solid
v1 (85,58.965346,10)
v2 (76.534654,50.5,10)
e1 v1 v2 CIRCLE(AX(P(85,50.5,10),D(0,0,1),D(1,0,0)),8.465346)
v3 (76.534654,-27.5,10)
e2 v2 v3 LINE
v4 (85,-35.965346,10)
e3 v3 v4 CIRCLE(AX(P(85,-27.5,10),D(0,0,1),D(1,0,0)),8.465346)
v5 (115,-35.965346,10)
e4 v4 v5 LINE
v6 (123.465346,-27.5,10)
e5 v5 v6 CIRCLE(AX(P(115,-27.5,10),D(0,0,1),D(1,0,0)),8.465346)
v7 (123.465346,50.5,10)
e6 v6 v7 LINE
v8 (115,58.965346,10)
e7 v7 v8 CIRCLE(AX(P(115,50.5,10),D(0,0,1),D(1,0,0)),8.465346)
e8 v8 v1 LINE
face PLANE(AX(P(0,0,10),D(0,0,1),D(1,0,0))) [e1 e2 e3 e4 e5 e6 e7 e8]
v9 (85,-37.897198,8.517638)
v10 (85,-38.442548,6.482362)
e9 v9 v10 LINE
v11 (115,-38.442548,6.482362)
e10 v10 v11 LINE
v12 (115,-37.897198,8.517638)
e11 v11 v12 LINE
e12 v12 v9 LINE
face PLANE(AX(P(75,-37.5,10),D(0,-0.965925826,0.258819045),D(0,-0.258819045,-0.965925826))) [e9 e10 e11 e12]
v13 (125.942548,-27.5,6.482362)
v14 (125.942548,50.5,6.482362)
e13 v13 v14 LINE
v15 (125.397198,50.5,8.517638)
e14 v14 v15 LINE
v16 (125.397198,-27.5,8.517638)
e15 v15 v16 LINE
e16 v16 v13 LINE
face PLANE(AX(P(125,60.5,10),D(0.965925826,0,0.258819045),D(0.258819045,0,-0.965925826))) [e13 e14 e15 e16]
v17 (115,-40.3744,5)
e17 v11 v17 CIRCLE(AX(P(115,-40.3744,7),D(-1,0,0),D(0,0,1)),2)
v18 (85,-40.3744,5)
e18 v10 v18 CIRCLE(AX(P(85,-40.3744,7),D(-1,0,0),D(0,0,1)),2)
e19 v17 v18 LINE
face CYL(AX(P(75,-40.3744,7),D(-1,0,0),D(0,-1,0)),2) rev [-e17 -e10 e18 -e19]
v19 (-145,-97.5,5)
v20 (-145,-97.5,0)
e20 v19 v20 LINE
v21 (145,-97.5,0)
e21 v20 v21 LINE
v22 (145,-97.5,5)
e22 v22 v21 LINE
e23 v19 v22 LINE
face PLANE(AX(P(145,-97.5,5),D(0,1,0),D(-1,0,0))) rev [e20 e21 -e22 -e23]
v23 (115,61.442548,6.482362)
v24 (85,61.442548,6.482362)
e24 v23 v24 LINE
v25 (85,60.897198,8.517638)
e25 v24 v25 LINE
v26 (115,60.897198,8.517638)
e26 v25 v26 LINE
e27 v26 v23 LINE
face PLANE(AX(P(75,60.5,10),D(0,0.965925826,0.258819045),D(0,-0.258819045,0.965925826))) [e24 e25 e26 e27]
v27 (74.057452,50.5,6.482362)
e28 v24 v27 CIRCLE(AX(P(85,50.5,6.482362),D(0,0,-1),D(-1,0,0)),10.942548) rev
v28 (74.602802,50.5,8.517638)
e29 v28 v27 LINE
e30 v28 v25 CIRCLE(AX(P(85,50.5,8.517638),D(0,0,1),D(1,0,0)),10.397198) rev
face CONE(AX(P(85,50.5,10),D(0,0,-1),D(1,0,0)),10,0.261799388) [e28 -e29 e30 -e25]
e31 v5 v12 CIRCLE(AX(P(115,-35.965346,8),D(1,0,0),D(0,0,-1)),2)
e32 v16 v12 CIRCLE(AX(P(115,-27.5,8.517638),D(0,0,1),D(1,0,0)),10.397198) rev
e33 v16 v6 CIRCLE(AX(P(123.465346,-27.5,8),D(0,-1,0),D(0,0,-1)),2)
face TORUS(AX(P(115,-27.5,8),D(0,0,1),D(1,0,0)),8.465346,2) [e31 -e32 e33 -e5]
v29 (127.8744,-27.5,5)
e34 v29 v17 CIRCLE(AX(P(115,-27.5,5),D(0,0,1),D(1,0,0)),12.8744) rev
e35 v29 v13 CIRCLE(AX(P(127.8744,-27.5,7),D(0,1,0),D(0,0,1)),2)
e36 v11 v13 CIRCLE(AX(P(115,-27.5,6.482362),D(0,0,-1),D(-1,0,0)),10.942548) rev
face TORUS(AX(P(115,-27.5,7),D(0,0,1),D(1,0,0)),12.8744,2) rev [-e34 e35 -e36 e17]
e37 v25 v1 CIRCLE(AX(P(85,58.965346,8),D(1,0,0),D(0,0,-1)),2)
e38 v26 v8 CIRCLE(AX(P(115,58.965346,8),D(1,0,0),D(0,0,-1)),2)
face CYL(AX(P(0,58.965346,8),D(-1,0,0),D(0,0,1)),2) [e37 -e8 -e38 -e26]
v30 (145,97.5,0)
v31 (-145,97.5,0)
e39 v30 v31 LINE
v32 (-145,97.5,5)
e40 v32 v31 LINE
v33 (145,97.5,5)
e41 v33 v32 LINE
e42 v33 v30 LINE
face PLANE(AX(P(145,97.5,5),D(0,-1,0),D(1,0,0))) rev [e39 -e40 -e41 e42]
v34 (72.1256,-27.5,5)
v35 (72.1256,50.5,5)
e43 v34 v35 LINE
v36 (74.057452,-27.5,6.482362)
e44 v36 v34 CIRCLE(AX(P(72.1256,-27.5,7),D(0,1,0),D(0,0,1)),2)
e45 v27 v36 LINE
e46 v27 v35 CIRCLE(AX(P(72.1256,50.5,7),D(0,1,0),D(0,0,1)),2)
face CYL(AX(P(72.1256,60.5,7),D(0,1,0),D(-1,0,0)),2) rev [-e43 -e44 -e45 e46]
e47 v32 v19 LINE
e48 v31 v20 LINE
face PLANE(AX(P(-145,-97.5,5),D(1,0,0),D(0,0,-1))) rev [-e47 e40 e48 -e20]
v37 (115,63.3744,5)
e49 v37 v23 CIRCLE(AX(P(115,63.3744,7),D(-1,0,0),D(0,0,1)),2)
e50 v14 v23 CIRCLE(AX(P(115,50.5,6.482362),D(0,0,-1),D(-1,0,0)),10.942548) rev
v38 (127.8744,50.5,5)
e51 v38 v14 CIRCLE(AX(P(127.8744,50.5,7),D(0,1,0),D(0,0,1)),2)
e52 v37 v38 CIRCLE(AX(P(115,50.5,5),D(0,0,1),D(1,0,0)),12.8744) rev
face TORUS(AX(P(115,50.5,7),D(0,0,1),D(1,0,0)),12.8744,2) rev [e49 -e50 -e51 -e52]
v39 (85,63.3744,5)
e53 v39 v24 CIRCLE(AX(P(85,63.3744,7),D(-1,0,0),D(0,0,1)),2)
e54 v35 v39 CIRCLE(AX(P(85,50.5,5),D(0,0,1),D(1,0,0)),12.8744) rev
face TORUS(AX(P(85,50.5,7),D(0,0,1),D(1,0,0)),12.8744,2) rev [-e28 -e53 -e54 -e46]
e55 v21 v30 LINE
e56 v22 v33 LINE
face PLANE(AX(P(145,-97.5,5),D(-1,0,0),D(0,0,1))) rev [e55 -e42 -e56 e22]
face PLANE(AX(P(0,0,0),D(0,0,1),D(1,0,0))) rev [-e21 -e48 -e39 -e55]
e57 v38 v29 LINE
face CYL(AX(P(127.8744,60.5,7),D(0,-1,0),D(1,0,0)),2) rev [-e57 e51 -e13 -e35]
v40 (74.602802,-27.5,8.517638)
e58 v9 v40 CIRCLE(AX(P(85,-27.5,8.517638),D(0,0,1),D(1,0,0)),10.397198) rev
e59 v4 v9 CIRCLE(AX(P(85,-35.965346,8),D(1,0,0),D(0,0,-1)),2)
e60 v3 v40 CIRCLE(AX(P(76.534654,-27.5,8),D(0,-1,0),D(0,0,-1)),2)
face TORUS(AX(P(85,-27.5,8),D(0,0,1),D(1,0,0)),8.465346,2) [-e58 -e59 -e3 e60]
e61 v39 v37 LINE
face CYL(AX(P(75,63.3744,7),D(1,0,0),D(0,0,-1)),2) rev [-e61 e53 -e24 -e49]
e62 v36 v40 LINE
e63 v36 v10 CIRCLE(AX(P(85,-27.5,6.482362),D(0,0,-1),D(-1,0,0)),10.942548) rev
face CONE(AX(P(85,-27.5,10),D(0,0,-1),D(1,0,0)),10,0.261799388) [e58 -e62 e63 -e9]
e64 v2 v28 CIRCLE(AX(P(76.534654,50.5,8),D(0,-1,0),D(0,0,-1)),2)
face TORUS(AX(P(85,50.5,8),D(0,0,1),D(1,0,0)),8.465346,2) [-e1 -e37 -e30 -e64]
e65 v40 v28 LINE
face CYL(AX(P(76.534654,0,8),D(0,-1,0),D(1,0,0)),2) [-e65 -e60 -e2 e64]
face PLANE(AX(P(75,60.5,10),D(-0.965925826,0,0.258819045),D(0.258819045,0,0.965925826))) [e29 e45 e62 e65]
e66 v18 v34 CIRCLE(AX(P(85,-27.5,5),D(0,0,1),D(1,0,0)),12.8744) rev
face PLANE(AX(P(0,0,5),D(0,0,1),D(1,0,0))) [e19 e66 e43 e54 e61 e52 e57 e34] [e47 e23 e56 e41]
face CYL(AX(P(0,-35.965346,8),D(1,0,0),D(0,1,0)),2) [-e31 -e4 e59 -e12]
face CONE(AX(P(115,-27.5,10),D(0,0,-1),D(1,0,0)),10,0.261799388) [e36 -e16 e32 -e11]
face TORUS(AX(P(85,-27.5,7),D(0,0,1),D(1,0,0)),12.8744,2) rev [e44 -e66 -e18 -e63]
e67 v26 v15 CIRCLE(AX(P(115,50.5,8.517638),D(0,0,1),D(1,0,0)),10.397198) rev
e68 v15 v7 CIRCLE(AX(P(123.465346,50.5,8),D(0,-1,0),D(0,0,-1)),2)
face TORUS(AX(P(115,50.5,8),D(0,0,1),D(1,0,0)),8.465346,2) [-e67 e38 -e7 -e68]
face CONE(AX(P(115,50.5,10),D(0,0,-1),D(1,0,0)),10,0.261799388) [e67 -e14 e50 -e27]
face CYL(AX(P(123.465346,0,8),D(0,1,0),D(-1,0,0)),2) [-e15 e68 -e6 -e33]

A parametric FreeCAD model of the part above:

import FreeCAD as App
import Part
import Sketcher
from FreeCAD import Vector


def edges_at(feature, points):
    """Names of the edges that pass closest to the given points."""
    edges = feature.Shape.Edges
    near = lambda p: min(range(len(edges)), key=lambda i: edges[i].distToShape(Part.Vertex(*p))[0])
    return sorted({f"Edge{near(p) + 1}" for p in points})


def faces_at(feature, points):
    """Names of the faces that lie closest to the given points."""
    faces = feature.Shape.Faces
    near = lambda p: min(range(len(faces)), key=lambda i: faces[i].distToShape(Part.Vertex(*p))[0])
    return sorted({f"Face{near(p) + 1}" for p in points})

doc = App.newDocument("Part")
body = doc.addObject("PartDesign::Body", "Body")

# Sketch on XY plane
sketch1 = body.newObject("Sketcher::SketchObject", "Sketch")
sketch1.AttachmentSupport = (doc.getObject("XY_Plane"), [""])
sketch1.MapMode = "FlatFace"
sketch1.addGeometry([
    Part.LineSegment(Vector(-145, 98, 0), Vector(-145, -98, 0)),
    Part.LineSegment(Vector(-145, -98, 0), Vector(145, -98, 0)),
    Part.LineSegment(Vector(145, -98, 0), Vector(145, 98, 0)),
    Part.LineSegment(Vector(145, 98, 0), Vector(-145, 98, 0)),
], False)
sketch1.addConstraint([
    Sketcher.Constraint("Coincident", 0, 2, 1, 1),
    Sketcher.Constraint("Coincident", 1, 2, 2, 1),
    Sketcher.Constraint("Coincident", 2, 2, 3, 1),
    Sketcher.Constraint("Coincident", 3, 2, 0, 1),
    Sketcher.Constraint("Vertical", 0),
    Sketcher.Constraint("Horizontal", 1),
    Sketcher.Constraint("Vertical", 2),
    Sketcher.Constraint("Horizontal", 3),
    Sketcher.Constraint("Symmetric", 0, 2, 2, 2, -1, 1),
    Sketcher.Constraint("DistanceX", 1, 1, 1, 2, 290.0),
    Sketcher.Constraint("DistanceY", 0, 2, 0, 1, 195.0),
])
pad1 = body.newObject("PartDesign::Pad", "Pad")
pad1.Profile = sketch1
pad1.Length = 5

# Sketch on XY plane
sketch2 = body.newObject("Sketcher::SketchObject", "Sketch001")
sketch2.AttachmentSupport = (doc.getObject("XY_Plane"), [""])
sketch2.MapMode = "FlatFace"
sketch2.AttachmentOffset = App.Placement(Vector(0, 0, 5), App.Rotation())
sketch2.addGeometry([
    Part.LineSegment(Vector(75, 60, 0), Vector(75, -38, 0)),
    Part.LineSegment(Vector(75, -38, 0), Vector(125, -38, 0)),
    Part.LineSegment(Vector(125, -38, 0), Vector(125, 60, 0)),
    Part.LineSegment(Vector(125, 60, 0), Vector(75, 60, 0)),
], False)
sketch2.addConstraint([
    Sketcher.Constraint("Coincident", 0, 2, 1, 1),
    Sketcher.Constraint("Coincident", 1, 2, 2, 1),
    Sketcher.Constraint("Coincident", 2, 2, 3, 1),
    Sketcher.Constraint("Coincident", 3, 2, 0, 1),
    Sketcher.Constraint("Vertical", 0),
    Sketcher.Constraint("Horizontal", 1),
    Sketcher.Constraint("Vertical", 2),
    Sketcher.Constraint("Horizontal", 3),
    Sketcher.Constraint("DistanceX", 1, 1, 1, 2, 50.0),
    Sketcher.Constraint("DistanceY", 0, 2, 0, 1, 98.0),
    Sketcher.Constraint("DistanceX", -1, 1, 0, 2, 75.0),
    Sketcher.Constraint("DistanceY", 0, 2, -1, 1, 37.5),
])
pad2 = body.newObject("PartDesign::Pad", "Pad001")
pad2.Profile = sketch2
pad2.Length = 5
doc.recompute()

fillet = body.newObject("PartDesign::Fillet", "Fillet")
fillet.Base = (pad2, edges_at(pad2, [
    (125, -37.5, 7.5),
    (125, 60.5, 7.5),
    (75, 60.5, 7.5),
    (75, -37.5, 7.5),
]))
fillet.Radius = 10
doc.recompute()

datumplane = body.newObject("PartDesign::Plane", "DatumPlane")
datumplane.AttachmentSupport = (doc.getObject("XY_Plane"), [""])
datumplane.MapMode = "FlatFace"
datumplane.AttachmentOffset = App.Placement(Vector(0, 0, 10), App.Rotation())
draft = body.newObject("PartDesign::Draft", "Draft")
draft.Base = (fillet, faces_at(fillet, [
    (75, 11.5, 7.5),
    (77.929, 57.571, 7.5),
    (100, 60.5, 7.5),
    (122.071, 57.571, 7.5),
    (125, 11.5, 7.5),
    (122.071, -34.571, 7.5),
    (100, -37.5, 7.5),
    (77.929, -34.571, 7.5),
]))
draft.NeutralPlane = (datumplane, [""])
draft.Angle = 15
draft.Reversed = False
doc.recompute()

fillet2 = body.newObject("PartDesign::Fillet", "Fillet001")
fillet2.Base = (draft, edges_at(draft, [
    (100, 61.84, 5),
    (100, 60.5, 10),
    (126.34, 11.5, 5),
    (125, 11.5, 10),
    (75, 11.5, 10),
    (100, -37.5, 10),
    (77.929, -34.571, 10),
    (122.071, -34.571, 10),
    (77.929, 57.571, 10),
    (122.071, 57.571, 10),
    (73.66, 11.5, 5),
    (100, -38.84, 5),
    (123.018, 58.518, 5),
    (76.982, 58.518, 5),
    (123.018, -35.518, 5),
    (76.982, -35.518, 5),
]))
fillet2.Radius = 2

doc.recompute()
